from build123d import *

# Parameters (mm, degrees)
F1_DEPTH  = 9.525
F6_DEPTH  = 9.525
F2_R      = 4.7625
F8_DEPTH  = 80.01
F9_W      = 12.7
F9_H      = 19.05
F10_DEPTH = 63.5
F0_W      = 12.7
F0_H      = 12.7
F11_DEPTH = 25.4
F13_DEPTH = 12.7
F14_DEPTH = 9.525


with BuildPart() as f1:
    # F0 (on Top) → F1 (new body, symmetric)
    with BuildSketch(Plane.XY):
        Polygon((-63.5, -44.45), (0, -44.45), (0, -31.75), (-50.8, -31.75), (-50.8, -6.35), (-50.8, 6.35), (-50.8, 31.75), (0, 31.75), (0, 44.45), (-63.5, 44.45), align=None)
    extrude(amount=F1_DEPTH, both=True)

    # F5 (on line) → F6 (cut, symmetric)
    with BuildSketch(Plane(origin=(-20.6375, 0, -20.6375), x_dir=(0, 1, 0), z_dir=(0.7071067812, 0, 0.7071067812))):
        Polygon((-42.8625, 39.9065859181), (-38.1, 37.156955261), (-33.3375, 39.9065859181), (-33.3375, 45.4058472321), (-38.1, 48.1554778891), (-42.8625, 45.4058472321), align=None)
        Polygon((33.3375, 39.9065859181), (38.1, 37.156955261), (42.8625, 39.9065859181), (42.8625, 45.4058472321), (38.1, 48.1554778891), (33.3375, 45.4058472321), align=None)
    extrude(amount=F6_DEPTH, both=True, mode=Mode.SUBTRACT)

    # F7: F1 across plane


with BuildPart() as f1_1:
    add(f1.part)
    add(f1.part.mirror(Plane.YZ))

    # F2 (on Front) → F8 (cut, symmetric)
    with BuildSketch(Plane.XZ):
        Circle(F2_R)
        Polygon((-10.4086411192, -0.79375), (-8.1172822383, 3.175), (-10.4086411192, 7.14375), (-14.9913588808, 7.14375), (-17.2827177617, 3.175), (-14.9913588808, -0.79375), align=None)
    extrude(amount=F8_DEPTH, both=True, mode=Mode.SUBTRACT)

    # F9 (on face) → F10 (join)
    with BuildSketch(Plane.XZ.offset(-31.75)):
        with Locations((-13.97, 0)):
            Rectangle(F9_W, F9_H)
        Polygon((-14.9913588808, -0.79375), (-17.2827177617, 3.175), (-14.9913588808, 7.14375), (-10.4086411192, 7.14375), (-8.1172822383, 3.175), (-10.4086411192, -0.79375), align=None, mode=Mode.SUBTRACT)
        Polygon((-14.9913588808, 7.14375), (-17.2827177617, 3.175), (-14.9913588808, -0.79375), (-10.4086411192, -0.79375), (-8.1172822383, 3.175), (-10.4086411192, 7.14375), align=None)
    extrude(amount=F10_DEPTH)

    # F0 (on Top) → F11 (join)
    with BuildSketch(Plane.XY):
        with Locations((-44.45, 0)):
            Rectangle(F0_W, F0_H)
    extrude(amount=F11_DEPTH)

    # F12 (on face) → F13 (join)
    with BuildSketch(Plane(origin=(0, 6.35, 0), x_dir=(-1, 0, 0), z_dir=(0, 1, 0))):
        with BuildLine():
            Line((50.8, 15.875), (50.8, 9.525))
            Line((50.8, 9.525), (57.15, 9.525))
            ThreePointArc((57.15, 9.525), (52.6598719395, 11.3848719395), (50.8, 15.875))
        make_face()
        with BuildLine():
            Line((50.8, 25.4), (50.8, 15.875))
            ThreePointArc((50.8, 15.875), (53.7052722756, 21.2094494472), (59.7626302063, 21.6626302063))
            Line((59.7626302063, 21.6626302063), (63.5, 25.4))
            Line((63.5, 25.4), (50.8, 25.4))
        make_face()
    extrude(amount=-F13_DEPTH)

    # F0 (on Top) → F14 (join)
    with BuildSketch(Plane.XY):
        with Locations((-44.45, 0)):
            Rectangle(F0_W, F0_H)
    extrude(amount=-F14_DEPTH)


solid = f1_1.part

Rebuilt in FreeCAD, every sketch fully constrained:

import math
import FreeCAD as App
import Part
import Sketcher
from FreeCAD import Vector
Q = App.Units.Quantity


def add_polygon(sketch, points):
    """Adds a closed chain of lines whose ends are joined by coincident constraints."""
    first, n = sketch.GeometryCount, len(points)
    for a, b in zip(points, points[1:] + points[:1]):
        sketch.addGeometry(Part.LineSegment(App.Vector(*a, 0), App.Vector(*b, 0)), False)
    for i in range(n):
        sketch.addConstraint(Sketcher.Constraint("Coincident", first + i, 2, first + (i + 1) % n, 1))

doc = App.newDocument("Part")
body = doc.addObject("PartDesign::Body", "Body")

sketch1 = doc.addObject("Sketcher::SketchObject", "Sketch")
body.addObject(sketch1)
sketch1.AttachmentSupport = (doc.XY_Plane, [""])
sketch1.MapMode = "FlatFace"
add_polygon(sketch1, [(-63.5, -44.45), (0, -44.45), (0, -31.75), (-50.8, -31.75), (-50.8, 31.75), (0, 31.75), (0, 44.45), (-63.5, 44.45)])
sketch1.addConstraint(Sketcher.Constraint("Horizontal", 0))
sketch1.addConstraint(Sketcher.Constraint("Vertical", 1))
sketch1.addConstraint(Sketcher.Constraint("Horizontal", 2))
sketch1.addConstraint(Sketcher.Constraint("Vertical", 3))
sketch1.addConstraint(Sketcher.Constraint("Horizontal", 4))
sketch1.addConstraint(Sketcher.Constraint("Vertical", 5))
sketch1.addConstraint(Sketcher.Constraint("Horizontal", 6))
sketch1.addConstraint(Sketcher.Constraint("Vertical", 7))
sketch1.addConstraint(Sketcher.Constraint("Symmetric", 1, 2, 4, 2, -1, 1))
sketch1.addConstraint(Sketcher.Constraint("Symmetric", 0, 2, 5, 2, -1))
sketch1.addConstraint(Sketcher.Constraint("Equal", 6, 3))
sketch1.addConstraint(Sketcher.Constraint("DistanceX", 2, 2, 2, 1, Q("2 in")))
sketch1.addConstraint(Sketcher.Constraint("DistanceX", 0, 1, 0, 2, Q("2.5 in")))
sketch1.addConstraint(Sketcher.Constraint("DistanceY", 1, 1, 1, 2, Q("0.5 in")))
pad1 = doc.addObject("PartDesign::Pad", "Pad")
body.addObject(pad1)
pad1.Profile = sketch1
pad1.Length = Q("0.75 in")
pad1.Midplane = True

sketch2 = doc.addObject("Sketcher::SketchObject", "Sketch001")
body.addObject(sketch2)
sketch2.Placement = App.Placement(Vector(-20.6375, 0, -20.6375), App.Rotation(Vector(0, 1, 0), Vector(-0.707106781, 0, 0.707106781), Vector(0.707106781, 0, 0.707106781), "ZXY"))
add_polygon(sketch2, [(-42.8625, 39.906586), (-38.1, 37.156955), (-33.3375, 39.906586), (-33.3375, 45.405847), (-38.1, 48.155478), (-42.8625, 45.405847)])
add_polygon(sketch2, [(33.3375, 39.906586), (38.1, 37.156955), (42.8625, 39.906586), (42.8625, 45.405847), (38.1, 48.155478), (33.3375, 45.405847)])
sketch2.addConstraint(Sketcher.Constraint("Vertical", 2))
sketch2.addConstraint(Sketcher.Constraint("Vertical", 5))
sketch2.addConstraint(Sketcher.Constraint("Vertical", 8))
sketch2.addConstraint(Sketcher.Constraint("Vertical", 11))
sketch2.addConstraint(Sketcher.Constraint("Symmetric", 0, 2, 6, 2, -2))
sketch2.addConstraint(Sketcher.Constraint("Symmetric", 5, 2, 7, 2, -2))
sketch2.addConstraint(Sketcher.Constraint("Symmetric", 3, 2, 9, 2, -2))
sketch2.addConstraint(Sketcher.Constraint("Symmetric", 2, 2, 10, 2, -2))
sketch2.addConstraint(Sketcher.Constraint("Parallel", 0, 3))
sketch2.addConstraint(Sketcher.Constraint("Parallel", 1, 4))
sketch2.addConstraint(Sketcher.Constraint("Parallel", 3, 6))
sketch2.addConstraint(Sketcher.Constraint("Parallel", 4, 7))
sketch2.addConstraint(Sketcher.Constraint("Parallel", 6, 9))
sketch2.addConstraint(Sketcher.Constraint("Horizontal", 2, 2, 4, 2))
sketch2.addConstraint(Sketcher.Constraint("Horizontal", 1, 2, 5, 2))
sketch2.addConstraint(Sketcher.Constraint("Angle", 0, Q("-30 deg")))
sketch2.addConstraint(Sketcher.Constraint("DistanceX", 0, 2, 6, 2, Q("3 in")))
sketch2.addConstraint(Sketcher.Constraint("DistanceX", 1, 2, -1, 1, Q("1.3125 in")))
sketch2.addConstraint(Sketcher.Constraint("DistanceY", 2, 1, 2, 2, 5.499261))
sketch2.addConstraint(Sketcher.Constraint("DistanceY", -1, 1, 0, 2, 37.156955))
pocket1 = doc.addObject("PartDesign::Pocket", "Pocket")
body.addObject(pocket1)
pocket1.Profile = sketch2
pocket1.Length = Q("0.75 in")
pocket1.Midplane = True
body2 = doc.addObject("PartDesign::Body", "Body001")
doc.recompute()

body2.BaseFeature = body
doc.recompute()

mirroring = doc.addObject("Part::Mirroring", "Mirroring")
mirroring.Source = body
mirroring.Base = Vector(0, 0, 0)
mirroring.Normal = Vector(1, 0, 0)
body3 = doc.addObject("PartDesign::Body", "Body002")
body3.BaseFeature = mirroring
boolean = doc.addObject("PartDesign::Boolean", "Boolean")
body2.addObject(boolean)
boolean.Type = "Fuse"
boolean.addObjects([body3])
doc.recompute()

sketch3 = doc.addObject("Sketcher::SketchObject", "Sketch002")
body2.addObject(sketch3)
sketch3.AttachmentSupport = (doc.getObject("XZ_Plane001"), [""])
sketch3.MapMode = "FlatFace"
sketch3.addGeometry(Part.Circle(Vector(0, 0, 0), Vector(0, 0, 1), 4.7625), False)
add_polygon(sketch3, [(-10.408641, -0.79375), (-8.117282, 3.175), (-10.408641, 7.14375), (-14.991359, 7.14375), (-17.282718, 3.175), (-14.991359, -0.79375)])
sketch3.addConstraint(Sketcher.Constraint("Horizontal", 3))
sketch3.addConstraint(Sketcher.Constraint("Horizontal", 6))
sketch3.addConstraint(Sketcher.Constraint("Coincident", 0, 3, -1, 1))
sketch3.addConstraint(Sketcher.Constraint("Parallel", 1, 4))
sketch3.addConstraint(Sketcher.Constraint("Parallel", 2, 5))
sketch3.addConstraint(Sketcher.Constraint("Horizontal", 1, 2, 4, 2))
sketch3.addConstraint(Sketcher.Constraint("Vertical", 3, 2, 5, 2))
sketch3.addConstraint(Sketcher.Constraint("Vertical", 2, 2, 6, 2))
sketch3.addConstraint(Sketcher.Constraint("Diameter", 0, Q("0.375 in")))
sketch3.addConstraint(Sketcher.Constraint("Angle", 1, Q("60 deg")))
sketch3.addConstraint(Sketcher.Constraint("DistanceY", -1, 1, 1, 2, Q("0.125 in")))
sketch3.addConstraint(Sketcher.Constraint("DistanceY", -1, 1, 2, 2, Q("0.28125 in")))
sketch3.addConstraint(Sketcher.Constraint("DistanceX", 3, 2, 3, 1, 4.582718))
sketch3.addConstraint(Sketcher.Constraint("DistanceX", 2, 2, -1, 1, 10.408641))
pocket2 = doc.addObject("PartDesign::Pocket", "Pocket001")
body2.addObject(pocket2)
pocket2.Profile = sketch3
pocket2.Length = Q("6.3 in")
pocket2.Midplane = True

sketch4 = doc.addObject("Sketcher::SketchObject", "Sketch003")
body2.addObject(sketch4)
sketch4.AttachmentSupport = (doc.getObject("XZ_Plane001"), [""])
sketch4.MapMode = "FlatFace"
sketch4.AttachmentOffset = App.Placement(Vector(0, 0, -1.25 * 25.4), App.Rotation())
add_polygon(sketch4, [(-20.32, 9.525), (-20.32, -9.525), (-7.62, -9.525), (-7.62, 9.525)])
sketch4.addConstraint(Sketcher.Constraint("Vertical", 0))
sketch4.addConstraint(Sketcher.Constraint("Horizontal", 1))
sketch4.addConstraint(Sketcher.Constraint("Vertical", 2))
sketch4.addConstraint(Sketcher.Constraint("Horizontal", 3))
sketch4.addConstraint(Sketcher.Constraint("DistanceX", 1, 1, 1, 2, Q("0.5 in")))
sketch4.addConstraint(Sketcher.Constraint("DistanceY", 0, 2, 0, 1, Q("0.75 in")))
sketch4.addConstraint(Sketcher.Constraint("DistanceX", 0, 2, -1, 1, Q("0.8 in")))
sketch4.addConstraint(Sketcher.Constraint("DistanceY", 0, 2, -1, 1, Q("0.375 in")))
pad2 = doc.addObject("PartDesign::Pad", "Pad001")
body2.addObject(pad2)
pad2.Profile = sketch4
pad2.Length = Q("2.5 in")

sketch5 = doc.addObject("Sketcher::SketchObject", "Sketch004")
body2.addObject(sketch5)
sketch5.AttachmentSupport = (doc.getObject("XY_Plane001"), [""])
sketch5.MapMode = "FlatFace"
add_polygon(sketch5, [(-50.8, 6.35), (-50.8, -6.35), (-38.1, -6.35), (-38.1, 6.35)])
sketch5.addConstraint(Sketcher.Constraint("Vertical", 0))
sketch5.addConstraint(Sketcher.Constraint("Horizontal", 1))
sketch5.addConstraint(Sketcher.Constraint("Vertical", 2))
sketch5.addConstraint(Sketcher.Constraint("Horizontal", 3))
sketch5.addConstraint(Sketcher.Constraint("Equal", 3, 0))
sketch5.addConstraint(Sketcher.Constraint("DistanceX", 1, 1, 1, 2, Q("0.5 in")))
sketch5.addConstraint(Sketcher.Constraint("DistanceX", 0, 2, -1, 1, Q("2 in")))
sketch5.addConstraint(Sketcher.Constraint("DistanceY", 0, 2, -1, 1, Q("0.25 in")))
pad3 = doc.addObject("PartDesign::Pad", "Pad002")
body2.addObject(pad3)
pad3.Profile = sketch5
pad3.Length = Q("1 in")

sketch6 = doc.addObject("Sketcher::SketchObject", "Sketch005")
body2.addObject(sketch6)
sketch6.AttachmentSupport = (doc.getObject("XZ_Plane001"), [""])
sketch6.MapMode = "FlatFace"
sketch6.AttachmentOffset = App.Placement(Vector(0, 0, -0.25 * 25.4), App.Rotation())
sketch6.addGeometry(Part.LineSegment(Vector(-50.8, 15.875, 0), Vector(-50.8, 9.525, 0)), False)
sketch6.addGeometry(Part.LineSegment(Vector(-50.8, 9.525, 0), Vector(-57.15, 9.525, 0)), False)
sketch6.addGeometry(Part.ArcOfCircle(Part.Circle(Vector(-57.15, 15.875, 0), Vector(0, 0, 1), 6.35), math.radians(-90), math.radians(0)), False)
sketch6.addGeometry(Part.LineSegment(Vector(-50.8, 25.4, 0), Vector(-50.8, 15.875, 0)), False)
sketch6.addGeometry(Part.ArcOfCircle(Part.Circle(Vector(-57.15, 15.875, 0), Vector(0, 0, 1), 6.35), math.radians(0), math.radians(114.295189)), False)
sketch6.addGeometry(Part.LineSegment(Vector(-59.76263, 21.66263, 0), Vector(-63.5, 25.4, 0)), False)
sketch6.addGeometry(Part.LineSegment(Vector(-63.5, 25.4, 0), Vector(-50.8, 25.4, 0)), False)
sketch6.addConstraint(Sketcher.Constraint("Coincident", 0, 2, 1, 1))
sketch6.addConstraint(Sketcher.Constraint("Tangent", 1, 2, 2, 1))
sketch6.addConstraint(Sketcher.Constraint("Tangent", 2, 2, 0, 1))
sketch6.addConstraint(Sketcher.Constraint("Tangent", 3, 2, 4, 1))
sketch6.addConstraint(Sketcher.Constraint("Coincident", 4, 2, 5, 1))
sketch6.addConstraint(Sketcher.Constraint("Coincident", 5, 2, 6, 1))
sketch6.addConstraint(Sketcher.Constraint("Coincident", 6, 2, 3, 1))
sketch6.addConstraint(Sketcher.Constraint("Vertical", 0))
sketch6.addConstraint(Sketcher.Constraint("Horizontal", 1))
sketch6.addConstraint(Sketcher.Constraint("Vertical", 3))
sketch6.addConstraint(Sketcher.Constraint("Horizontal", 6))
sketch6.addConstraint(Sketcher.Constraint("Coincident", 4, 3, 2, 3))
sketch6.addConstraint(Sketcher.Constraint("Equal", 2, 4))
sketch6.addConstraint(Sketcher.Constraint("Radius", 2, Q("0.25 in")))
sketch6.addConstraint(Sketcher.Constraint("DistanceX", 6, 1, 6, 2, Q("0.5 in")))
sketch6.addConstraint(Sketcher.Constraint("DistanceX", 0, 2, -1, 1, Q("2 in")))
sketch6.addConstraint(Sketcher.Constraint("DistanceY", -1, 1, 5, 2, Q("1 in")))
sketch6.addConstraint(Sketcher.Constraint("Angle", 5, Q("135 deg")))
sketch6.addConstraint(Sketcher.Constraint("DistanceY", 3, 2, 3, 1, Q("0.375 in")))
pad4 = doc.addObject("PartDesign::Pad", "Pad003")
body2.addObject(pad4)
pad4.Profile = sketch6
pad4.Length = Q("0.5 in")

sketch7 = doc.addObject("Sketcher::SketchObject", "Sketch006")
body2.addObject(sketch7)
sketch7.AttachmentSupport = (doc.getObject("XY_Plane001"), [""])
sketch7.MapMode = "FlatFace"
add_polygon(sketch7, [(-50.8, 6.35), (-50.8, -6.35), (-38.1, -6.35), (-38.1, 6.35)])
sketch7.addConstraint(Sketcher.Constraint("Vertical", 0))
sketch7.addConstraint(Sketcher.Constraint("Horizontal", 1))
sketch7.addConstraint(Sketcher.Constraint("Vertical", 2))
sketch7.addConstraint(Sketcher.Constraint("Horizontal", 3))
sketch7.addConstraint(Sketcher.Constraint("Equal", 3, 0))
sketch7.addConstraint(Sketcher.Constraint("DistanceX", 1, 1, 1, 2, Q("0.5 in")))
sketch7.addConstraint(Sketcher.Constraint("DistanceX", 0, 2, -1, 1, Q("2 in")))
sketch7.addConstraint(Sketcher.Constraint("DistanceY", 0, 2, -1, 1, Q("0.25 in")))
pad5 = doc.addObject("PartDesign::Pad", "Pad004")
body2.addObject(pad5)
pad5.Profile = sketch7
pad5.Length = Q("0.375 in")
pad5.Reversed = True
mirroring.Visibility = False

doc.recompute()
